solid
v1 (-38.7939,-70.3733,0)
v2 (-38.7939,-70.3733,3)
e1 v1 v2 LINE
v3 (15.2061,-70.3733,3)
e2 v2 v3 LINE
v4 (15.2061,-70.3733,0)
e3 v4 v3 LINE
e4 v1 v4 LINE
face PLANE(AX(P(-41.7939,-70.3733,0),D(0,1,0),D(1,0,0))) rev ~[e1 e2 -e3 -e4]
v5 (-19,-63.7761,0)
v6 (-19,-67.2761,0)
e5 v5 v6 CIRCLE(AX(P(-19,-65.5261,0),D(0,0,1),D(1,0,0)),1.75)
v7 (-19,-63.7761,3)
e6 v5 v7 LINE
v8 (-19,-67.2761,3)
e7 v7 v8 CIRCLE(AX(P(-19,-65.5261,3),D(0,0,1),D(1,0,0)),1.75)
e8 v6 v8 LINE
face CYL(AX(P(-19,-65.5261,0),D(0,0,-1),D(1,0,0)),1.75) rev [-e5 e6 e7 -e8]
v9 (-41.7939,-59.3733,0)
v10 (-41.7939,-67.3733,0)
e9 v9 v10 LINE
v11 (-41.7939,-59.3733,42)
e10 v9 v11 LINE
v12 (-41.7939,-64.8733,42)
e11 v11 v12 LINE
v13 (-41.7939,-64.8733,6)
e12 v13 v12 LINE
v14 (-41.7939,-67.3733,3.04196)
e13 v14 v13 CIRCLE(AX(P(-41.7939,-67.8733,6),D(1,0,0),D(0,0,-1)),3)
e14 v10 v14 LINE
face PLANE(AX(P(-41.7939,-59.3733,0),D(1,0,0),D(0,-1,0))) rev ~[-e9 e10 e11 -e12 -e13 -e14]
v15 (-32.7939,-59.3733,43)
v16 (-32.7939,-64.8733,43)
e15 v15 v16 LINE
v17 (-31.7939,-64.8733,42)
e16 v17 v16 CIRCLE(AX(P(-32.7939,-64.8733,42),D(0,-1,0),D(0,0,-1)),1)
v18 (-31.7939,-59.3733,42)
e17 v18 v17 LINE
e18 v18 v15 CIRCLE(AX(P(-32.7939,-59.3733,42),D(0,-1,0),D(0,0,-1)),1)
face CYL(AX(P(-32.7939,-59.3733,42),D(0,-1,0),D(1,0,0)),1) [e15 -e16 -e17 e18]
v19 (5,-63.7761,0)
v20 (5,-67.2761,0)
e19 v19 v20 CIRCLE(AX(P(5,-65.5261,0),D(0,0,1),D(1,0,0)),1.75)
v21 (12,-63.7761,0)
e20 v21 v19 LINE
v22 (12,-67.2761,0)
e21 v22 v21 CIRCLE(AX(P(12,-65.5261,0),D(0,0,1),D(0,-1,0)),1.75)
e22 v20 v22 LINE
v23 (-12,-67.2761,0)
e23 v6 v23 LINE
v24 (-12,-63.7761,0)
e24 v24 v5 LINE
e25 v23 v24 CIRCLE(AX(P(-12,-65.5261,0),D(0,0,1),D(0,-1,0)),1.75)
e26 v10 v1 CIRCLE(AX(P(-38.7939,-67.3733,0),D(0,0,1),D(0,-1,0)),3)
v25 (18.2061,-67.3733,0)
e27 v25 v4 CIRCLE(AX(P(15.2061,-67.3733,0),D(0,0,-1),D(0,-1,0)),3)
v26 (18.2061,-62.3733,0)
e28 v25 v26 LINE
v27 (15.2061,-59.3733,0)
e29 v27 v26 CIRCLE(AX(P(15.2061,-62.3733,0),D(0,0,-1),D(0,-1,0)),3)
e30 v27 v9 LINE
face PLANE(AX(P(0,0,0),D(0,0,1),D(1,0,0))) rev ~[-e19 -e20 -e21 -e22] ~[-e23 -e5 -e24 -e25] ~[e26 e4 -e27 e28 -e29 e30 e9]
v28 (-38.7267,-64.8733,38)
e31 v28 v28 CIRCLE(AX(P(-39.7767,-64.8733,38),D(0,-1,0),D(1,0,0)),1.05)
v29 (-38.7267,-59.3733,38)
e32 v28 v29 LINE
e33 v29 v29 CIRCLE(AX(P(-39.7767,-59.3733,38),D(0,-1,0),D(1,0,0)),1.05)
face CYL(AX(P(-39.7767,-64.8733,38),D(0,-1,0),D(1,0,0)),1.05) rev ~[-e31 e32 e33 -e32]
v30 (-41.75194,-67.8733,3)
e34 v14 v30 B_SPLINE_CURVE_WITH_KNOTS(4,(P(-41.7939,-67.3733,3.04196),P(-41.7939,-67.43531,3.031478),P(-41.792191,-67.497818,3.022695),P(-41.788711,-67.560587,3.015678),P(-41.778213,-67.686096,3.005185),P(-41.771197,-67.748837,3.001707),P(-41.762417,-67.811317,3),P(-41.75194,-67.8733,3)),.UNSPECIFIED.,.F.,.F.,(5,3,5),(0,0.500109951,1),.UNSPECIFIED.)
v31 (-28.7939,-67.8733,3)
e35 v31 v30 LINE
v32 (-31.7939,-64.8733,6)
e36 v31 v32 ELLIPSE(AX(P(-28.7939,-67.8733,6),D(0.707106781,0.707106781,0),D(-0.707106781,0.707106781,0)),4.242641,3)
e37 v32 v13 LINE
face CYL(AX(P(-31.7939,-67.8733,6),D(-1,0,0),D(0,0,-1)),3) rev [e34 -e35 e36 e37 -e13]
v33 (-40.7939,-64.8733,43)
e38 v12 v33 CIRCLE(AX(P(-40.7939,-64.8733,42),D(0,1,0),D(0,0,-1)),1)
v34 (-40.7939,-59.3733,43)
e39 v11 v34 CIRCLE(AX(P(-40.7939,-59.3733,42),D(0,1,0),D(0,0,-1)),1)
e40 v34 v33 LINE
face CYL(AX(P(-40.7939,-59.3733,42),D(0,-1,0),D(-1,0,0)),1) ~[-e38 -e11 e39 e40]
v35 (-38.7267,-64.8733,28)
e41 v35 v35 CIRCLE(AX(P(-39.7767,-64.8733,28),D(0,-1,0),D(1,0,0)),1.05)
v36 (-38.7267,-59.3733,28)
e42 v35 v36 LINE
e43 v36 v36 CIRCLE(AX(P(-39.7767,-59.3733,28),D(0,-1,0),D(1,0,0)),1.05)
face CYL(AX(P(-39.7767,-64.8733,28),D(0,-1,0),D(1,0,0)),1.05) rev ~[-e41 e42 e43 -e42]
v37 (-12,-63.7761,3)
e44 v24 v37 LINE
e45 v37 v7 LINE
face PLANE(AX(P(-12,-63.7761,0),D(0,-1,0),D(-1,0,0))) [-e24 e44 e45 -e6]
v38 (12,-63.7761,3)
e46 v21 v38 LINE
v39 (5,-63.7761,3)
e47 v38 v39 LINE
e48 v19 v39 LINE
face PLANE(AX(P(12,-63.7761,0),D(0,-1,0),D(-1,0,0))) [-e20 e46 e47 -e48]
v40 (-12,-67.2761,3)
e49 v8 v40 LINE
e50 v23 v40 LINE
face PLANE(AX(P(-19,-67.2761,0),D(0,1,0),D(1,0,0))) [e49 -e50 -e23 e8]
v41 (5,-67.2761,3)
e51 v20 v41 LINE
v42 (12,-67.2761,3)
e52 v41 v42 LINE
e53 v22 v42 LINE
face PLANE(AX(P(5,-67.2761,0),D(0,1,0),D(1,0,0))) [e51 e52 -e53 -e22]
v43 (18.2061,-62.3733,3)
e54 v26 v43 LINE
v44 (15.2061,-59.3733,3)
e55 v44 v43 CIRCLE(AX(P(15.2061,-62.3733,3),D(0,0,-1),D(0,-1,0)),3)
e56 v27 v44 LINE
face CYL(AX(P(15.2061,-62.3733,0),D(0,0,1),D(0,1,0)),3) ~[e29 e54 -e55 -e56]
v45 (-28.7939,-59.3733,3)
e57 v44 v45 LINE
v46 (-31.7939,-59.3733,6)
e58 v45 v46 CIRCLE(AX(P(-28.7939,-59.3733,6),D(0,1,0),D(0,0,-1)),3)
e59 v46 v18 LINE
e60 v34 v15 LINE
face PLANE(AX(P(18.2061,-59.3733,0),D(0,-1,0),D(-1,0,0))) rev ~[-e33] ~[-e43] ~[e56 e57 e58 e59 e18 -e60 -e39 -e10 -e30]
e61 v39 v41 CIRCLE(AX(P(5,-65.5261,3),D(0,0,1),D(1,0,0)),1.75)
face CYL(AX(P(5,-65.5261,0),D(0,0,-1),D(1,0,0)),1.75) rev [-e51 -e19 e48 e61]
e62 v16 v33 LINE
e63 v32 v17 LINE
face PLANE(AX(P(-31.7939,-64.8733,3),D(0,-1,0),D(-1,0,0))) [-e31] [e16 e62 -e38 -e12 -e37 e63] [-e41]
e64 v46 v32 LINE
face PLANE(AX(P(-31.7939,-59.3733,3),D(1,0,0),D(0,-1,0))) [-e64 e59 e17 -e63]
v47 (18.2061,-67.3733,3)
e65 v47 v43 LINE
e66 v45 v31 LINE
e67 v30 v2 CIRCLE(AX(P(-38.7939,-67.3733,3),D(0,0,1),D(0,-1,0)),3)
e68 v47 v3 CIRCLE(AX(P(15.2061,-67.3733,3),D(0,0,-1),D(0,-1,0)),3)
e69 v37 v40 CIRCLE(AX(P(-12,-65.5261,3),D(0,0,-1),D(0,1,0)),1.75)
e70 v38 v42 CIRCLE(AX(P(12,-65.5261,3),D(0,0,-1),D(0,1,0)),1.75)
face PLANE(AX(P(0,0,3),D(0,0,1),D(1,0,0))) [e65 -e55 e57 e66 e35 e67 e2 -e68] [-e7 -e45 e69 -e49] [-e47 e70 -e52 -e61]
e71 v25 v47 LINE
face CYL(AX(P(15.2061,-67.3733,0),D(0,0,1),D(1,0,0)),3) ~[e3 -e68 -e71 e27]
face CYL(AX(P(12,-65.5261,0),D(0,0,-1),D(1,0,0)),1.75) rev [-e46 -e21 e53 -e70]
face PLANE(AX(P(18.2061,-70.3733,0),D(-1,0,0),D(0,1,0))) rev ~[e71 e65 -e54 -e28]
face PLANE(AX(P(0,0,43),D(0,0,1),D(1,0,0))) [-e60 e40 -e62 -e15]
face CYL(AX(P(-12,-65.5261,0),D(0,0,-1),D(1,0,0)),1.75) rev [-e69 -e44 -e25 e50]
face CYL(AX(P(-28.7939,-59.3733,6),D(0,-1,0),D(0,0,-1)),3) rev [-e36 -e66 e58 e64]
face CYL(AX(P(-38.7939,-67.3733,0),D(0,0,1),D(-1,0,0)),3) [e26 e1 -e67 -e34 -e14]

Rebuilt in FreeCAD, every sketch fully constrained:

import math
import FreeCAD as App
import Part
import Sketcher
from FreeCAD import Vector
Q = App.Units.Quantity


def edges_at(feature, points):
    """Names of the edges that pass closest to the given points."""
    edges = feature.Shape.Edges
    near = lambda p: min(range(len(edges)), key=lambda i: edges[i].distToShape(Part.Vertex(*p))[0])
    return sorted({f"Edge{near(p) + 1}" for p in points})


def add_polygon(sketch, points):
    """Adds a closed chain of lines whose ends are joined by coincident constraints."""
    first, n = sketch.GeometryCount, len(points)
    for a, b in zip(points, points[1:] + points[:1]):
        sketch.addGeometry(Part.LineSegment(App.Vector(*a, 0), App.Vector(*b, 0)), False)
    for i in range(n):
        sketch.addConstraint(Sketcher.Constraint("Coincident", first + i, 2, first + (i + 1) % n, 1))

doc = App.newDocument("Part")
params = doc.addObject("Spreadsheet::Sheet", "Params")
for row, (alias, value) in enumerate([
    ("sketch1_width", "60 mm"),
    ("sketch1_width2", "7 mm"),
    ("sketch1_height", "11 mm"),
    ("sketch1_radius", "1.75 mm"),
    ("pad1_length", "3 mm"),
    ("sketch2_width", "10 mm"),
    ("sketch2_height", "5.5 mm"),
    ("pad2_length", "40 mm"),
    ("sketch3_diameter", "2.1 mm"),
    ("pocket1_length", "5.5 mm"),
    ("fillet_radius", "1 mm"),
    ("fillet2_radius", "3 mm"),
    ("fillet3_radius", "3 mm"),
], start=1):
    params.set(f"A{row}", alias)
    params.set(f"B{row}", "=" + value)
    params.setAlias(f"B{row}", alias)

body = doc.addObject("PartDesign::Body", "Body")

# Sketch on XY plane
sketch1 = body.newObject("Sketcher::SketchObject", "Sketch")
sketch1.AttachmentSupport = (doc.getObject("XY_Plane"), [""])
sketch1.MapMode = "FlatFace"
add_polygon(sketch1, [(18.2, -70.4), (18.2, -59.4), (-41.8, -59.4), (-41.8, -70.4)])  # lines 0-3
sketch1.addGeometry(Part.ArcOfCircle(Part.Circle(Vector(-12, -65.5, 0), Vector(0, 0, 1), 1.8), math.radians(-90), math.radians(90)), False)  # 4
sketch1.addGeometry(Part.LineSegment(Vector(-12, -67.3, 0), Vector(-19, -67.3, 0)), False)  # 5
sketch1.addGeometry(Part.ArcOfCircle(Part.Circle(Vector(-19, -65.5, 0), Vector(0, 0, 1), 1.8), math.radians(90), math.radians(270)), False)  # 6
sketch1.addGeometry(Part.LineSegment(Vector(-19, -63.8, 0), Vector(-12, -63.8, 0)), False)  # 7
sketch1.addGeometry(Part.ArcOfCircle(Part.Circle(Vector(12, -65.5, 0), Vector(0, 0, 1), 1.8), math.radians(-90), math.radians(90)), False)  # 8
sketch1.addGeometry(Part.LineSegment(Vector(12, -67.3, 0), Vector(5, -67.3, 0)), False)  # 9
sketch1.addGeometry(Part.ArcOfCircle(Part.Circle(Vector(5, -65.5, 0), Vector(0, 0, 1), 1.8), math.radians(90), math.radians(270)), False)  # 10
sketch1.addGeometry(Part.LineSegment(Vector(5, -63.8, 0), Vector(12, -63.8, 0)), False)  # 11
sketch1.addConstraint([
    Sketcher.Constraint("Tangent", 4, 1, 5, 1),
    Sketcher.Constraint("Tangent", 5, 2, 6, 2),
    Sketcher.Constraint("Tangent", 6, 1, 7, 1),
    Sketcher.Constraint("Tangent", 7, 2, 4, 2),
    Sketcher.Constraint("Tangent", 8, 1, 9, 1),
    Sketcher.Constraint("Tangent", 9, 2, 10, 2),
    Sketcher.Constraint("Tangent", 10, 1, 11, 1),
    Sketcher.Constraint("Tangent", 11, 2, 8, 2),
    Sketcher.Constraint("Vertical", 0),
    Sketcher.Constraint("Horizontal", 1),
    Sketcher.Constraint("Vertical", 2),
    Sketcher.Constraint("Horizontal", 3),
    Sketcher.Constraint("Horizontal", 5),
    Sketcher.Constraint("Horizontal", 7),
    Sketcher.Constraint("Horizontal", 9),
    Sketcher.Constraint("Horizontal", 11),
    Sketcher.Constraint("Equal", 6, 8),
    Sketcher.Constraint("Symmetric", 4, 3, 8, 3, -2),
    Sketcher.Constraint("Equal", 7, 9),
    Sketcher.Constraint("DistanceX", 1, 2, 1, 1, Q("60 mm")),
    Sketcher.Constraint("DistanceX", 5, 2, 5, 1, Q("7 mm")),
    Sketcher.Constraint("DistanceY", 0, 1, 0, 2, Q("11 mm")),
    Sketcher.Constraint("Radius", 4, Q("1.75 mm")),
    Sketcher.Constraint("DistanceX", 4, 3, -1, 1, Q("12 mm")),
    Sketcher.Constraint("DistanceY", 4, 3, -1, 1, Q("65.526 mm")),
    Sketcher.Constraint("DistanceX", -1, 1, 0, 2, Q("18.206 mm")),
    Sketcher.Constraint("DistanceY", 0, 2, -1, 1, Q("59.3733 mm")),
])
sketch1.setExpression("Constraints[23]", "Params.sketch1_width")
sketch1.setExpression("Constraints[24]", "Params.sketch1_width2")
sketch1.setExpression("Constraints[25]", "Params.sketch1_height")
sketch1.setExpression("Constraints[26]", "Params.sketch1_radius")
pad1 = body.newObject("PartDesign::Pad", "Pad")
pad1.Profile = sketch1
pad1.setExpression("Length", "Params.pad1_length")

# Sketch on XY plane
sketch2 = body.newObject("Sketcher::SketchObject", "Sketch001")
sketch2.AttachmentSupport = (doc.getObject("XY_Plane"), [""])
sketch2.MapMode = "FlatFace"
sketch2.AttachmentOffset = App.Placement(Vector(0, 0, 3), App.Rotation())
add_polygon(sketch2, [(-32, -59), (-42, -59), (-42, -65), (-32, -65)])  # lines 0-3
sketch2.addConstraint([
    Sketcher.Constraint("Horizontal", 0),
    Sketcher.Constraint("Vertical", 1),
    Sketcher.Constraint("Horizontal", 2),
    Sketcher.Constraint("Vertical", 3),
    Sketcher.Constraint("DistanceX", 0, 2, 0, 1, Q("10 mm")),
    Sketcher.Constraint("DistanceY", 1, 2, 1, 1, Q("5.5 mm")),
    Sketcher.Constraint("DistanceX", 0, 2, -1, 1, Q("41.794 mm")),
    Sketcher.Constraint("DistanceY", 0, 2, -1, 1, Q("59.3733 mm")),
])
sketch2.setExpression("Constraints[8]", "Params.sketch2_width")
sketch2.setExpression("Constraints[9]", "Params.sketch2_height")
pad2 = body.newObject("PartDesign::Pad", "Pad001")
pad2.Profile = sketch2
pad2.setExpression("Length", "Params.pad2_length")

# Sketch on XZ plane
sketch3 = body.newObject("Sketcher::SketchObject", "Sketch002")
sketch3.AttachmentSupport = (doc.getObject("XZ_Plane"), [""])
sketch3.MapMode = "FlatFace"
sketch3.AttachmentOffset = App.Placement(Vector(0, 0, 64.8733), App.Rotation())
sketch3.addGeometry([
    Part.Circle(Vector(-39.8, 38, 0), Vector(0, 0, 1), 1.1),
    Part.Circle(Vector(-39.8, 28, 0), Vector(0, 0, 1), 1.1),
], False)
sketch3.addConstraint([
    Sketcher.Constraint("Equal", 0, 1),
    Sketcher.Constraint("Vertical", 0, 3, 1, 3),
    Sketcher.Constraint("Diameter", 0, Q("2.1 mm")),
    Sketcher.Constraint("DistanceY", -1, 1, 0, 3, Q("38 mm")),
    Sketcher.Constraint("DistanceY", -1, 1, 1, 3, Q("28 mm")),
    Sketcher.Constraint("DistanceX", 0, 3, -1, 1, Q("39.7767 mm")),
])
sketch3.setExpression("Constraints[2]", "Params.sketch3_diameter")
pocket1 = body.newObject("PartDesign::Pocket", "Pocket")
pocket1.Profile = sketch3
pocket1.setExpression("Length", "Params.pocket1_length")
doc.recompute()

fillet = body.newObject("PartDesign::Fillet", "Fillet")
fillet.Base = (pocket1, edges_at(pocket1, [(-41.794, -62.123, 43), (-31.794, -62.123, 43)]))
fillet.setExpression("Radius", "Params.fillet_radius")
doc.recompute()

fillet2 = body.newObject("PartDesign::Fillet", "Fillet001")
fillet2.Base = (fillet, edges_at(fillet, [(-36.794, -64.873, 3), (-31.794, -62.123, 3)]))
fillet2.setExpression("Radius", "Params.fillet2_radius")
doc.recompute()

fillet3 = body.newObject("PartDesign::Fillet", "Fillet002")
fillet3.Base = (fillet2, edges_at(fillet2, [(18.206, -59.373, 1.5), (18.206, -70.373, 1.5), (-41.794, -70.373, 1.5)]))
fillet3.setExpression("Radius", "Params.fillet3_radius")

doc.recompute()
